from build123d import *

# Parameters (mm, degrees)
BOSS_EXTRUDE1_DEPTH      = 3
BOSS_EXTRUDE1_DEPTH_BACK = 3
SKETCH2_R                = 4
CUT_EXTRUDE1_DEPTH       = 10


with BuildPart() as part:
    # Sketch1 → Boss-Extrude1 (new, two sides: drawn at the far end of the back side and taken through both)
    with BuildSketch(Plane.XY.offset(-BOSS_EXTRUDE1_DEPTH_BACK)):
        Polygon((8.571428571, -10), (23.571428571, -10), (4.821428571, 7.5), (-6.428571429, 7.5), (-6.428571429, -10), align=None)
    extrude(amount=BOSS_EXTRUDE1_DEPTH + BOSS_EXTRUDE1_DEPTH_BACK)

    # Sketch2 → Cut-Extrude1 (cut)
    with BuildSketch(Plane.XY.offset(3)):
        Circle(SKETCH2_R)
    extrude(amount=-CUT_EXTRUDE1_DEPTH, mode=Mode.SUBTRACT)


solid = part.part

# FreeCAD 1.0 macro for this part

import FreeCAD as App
import Part
import Sketcher
from FreeCAD import Vector


def add_polygon(sketch, points):
    """Adds a closed chain of lines whose ends are joined by coincident constraints."""
    first, n = sketch.GeometryCount, len(points)
    for a, b in zip(points, points[1:] + points[:1]):
        sketch.addGeometry(Part.LineSegment(App.Vector(*a, 0), App.Vector(*b, 0)), False)
    for i in range(n):
        sketch.addConstraint(Sketcher.Constraint("Coincident", first + i, 2, first + (i + 1) % n, 1))

doc = App.newDocument("Part")
body = doc.addObject("PartDesign::Body", "Body")

# Sketch on XY plane
sketch1 = doc.addObject("Sketcher::SketchObject", "Sketch")
body.addObject(sketch1)
sketch1.AttachmentSupport = (doc.XY_Plane, [""])
sketch1.MapMode = "FlatFace"
add_polygon(sketch1, [(24, -10), (5, 8), (-6, 8), (-6, -10)])  # lines 0-3
sketch1.addConstraint(Sketcher.Constraint("Horizontal", 1))
sketch1.addConstraint(Sketcher.Constraint("Vertical", 2))
sketch1.addConstraint(Sketcher.Constraint("Horizontal", 3))
sketch1.addConstraint(Sketcher.Constraint("DistanceX", 3, 1, 3, 2, 30.0))
sketch1.addConstraint(Sketcher.Constraint("DistanceY", 2, 2, 2, 1, 17.5))
sketch1.addConstraint(Sketcher.Constraint("DistanceY", 2, 2, -1, 1, 10.0))
sketch1.addConstraint(Sketcher.Constraint("DistanceX", 1, 2, 1, 1, 11.25))
sketch1.addConstraint(Sketcher.Constraint("DistanceX", -1, 1, 0, 2, 4.821429))
pad1 = doc.addObject("PartDesign::Pad", "Pad")
body.addObject(pad1)
pad1.Profile = sketch1
pad1.Type = "TwoLengths"
pad1.Length = 3
pad1.Length2 = 3

# Sketch on XY plane
sketch2 = doc.addObject("Sketcher::SketchObject", "Sketch001")
body.addObject(sketch2)
sketch2.AttachmentSupport = (doc.XY_Plane, [""])
sketch2.MapMode = "FlatFace"
sketch2.AttachmentOffset = App.Placement(Vector(0, 0, 3), App.Rotation())
sketch2.addGeometry(Part.Circle(Vector(0, 0, 0), Vector(0, 0, 1), 4), False)
sketch2.addConstraint(Sketcher.Constraint("Coincident", 0, 3, -1, 1))
sketch2.addConstraint(Sketcher.Constraint("Diameter", 0, 8.0))
pocket1 = doc.addObject("PartDesign::Pocket", "Pocket")
body.addObject(pocket1)
pocket1.Profile = sketch2
pocket1.Length = 10

doc.recompute()
